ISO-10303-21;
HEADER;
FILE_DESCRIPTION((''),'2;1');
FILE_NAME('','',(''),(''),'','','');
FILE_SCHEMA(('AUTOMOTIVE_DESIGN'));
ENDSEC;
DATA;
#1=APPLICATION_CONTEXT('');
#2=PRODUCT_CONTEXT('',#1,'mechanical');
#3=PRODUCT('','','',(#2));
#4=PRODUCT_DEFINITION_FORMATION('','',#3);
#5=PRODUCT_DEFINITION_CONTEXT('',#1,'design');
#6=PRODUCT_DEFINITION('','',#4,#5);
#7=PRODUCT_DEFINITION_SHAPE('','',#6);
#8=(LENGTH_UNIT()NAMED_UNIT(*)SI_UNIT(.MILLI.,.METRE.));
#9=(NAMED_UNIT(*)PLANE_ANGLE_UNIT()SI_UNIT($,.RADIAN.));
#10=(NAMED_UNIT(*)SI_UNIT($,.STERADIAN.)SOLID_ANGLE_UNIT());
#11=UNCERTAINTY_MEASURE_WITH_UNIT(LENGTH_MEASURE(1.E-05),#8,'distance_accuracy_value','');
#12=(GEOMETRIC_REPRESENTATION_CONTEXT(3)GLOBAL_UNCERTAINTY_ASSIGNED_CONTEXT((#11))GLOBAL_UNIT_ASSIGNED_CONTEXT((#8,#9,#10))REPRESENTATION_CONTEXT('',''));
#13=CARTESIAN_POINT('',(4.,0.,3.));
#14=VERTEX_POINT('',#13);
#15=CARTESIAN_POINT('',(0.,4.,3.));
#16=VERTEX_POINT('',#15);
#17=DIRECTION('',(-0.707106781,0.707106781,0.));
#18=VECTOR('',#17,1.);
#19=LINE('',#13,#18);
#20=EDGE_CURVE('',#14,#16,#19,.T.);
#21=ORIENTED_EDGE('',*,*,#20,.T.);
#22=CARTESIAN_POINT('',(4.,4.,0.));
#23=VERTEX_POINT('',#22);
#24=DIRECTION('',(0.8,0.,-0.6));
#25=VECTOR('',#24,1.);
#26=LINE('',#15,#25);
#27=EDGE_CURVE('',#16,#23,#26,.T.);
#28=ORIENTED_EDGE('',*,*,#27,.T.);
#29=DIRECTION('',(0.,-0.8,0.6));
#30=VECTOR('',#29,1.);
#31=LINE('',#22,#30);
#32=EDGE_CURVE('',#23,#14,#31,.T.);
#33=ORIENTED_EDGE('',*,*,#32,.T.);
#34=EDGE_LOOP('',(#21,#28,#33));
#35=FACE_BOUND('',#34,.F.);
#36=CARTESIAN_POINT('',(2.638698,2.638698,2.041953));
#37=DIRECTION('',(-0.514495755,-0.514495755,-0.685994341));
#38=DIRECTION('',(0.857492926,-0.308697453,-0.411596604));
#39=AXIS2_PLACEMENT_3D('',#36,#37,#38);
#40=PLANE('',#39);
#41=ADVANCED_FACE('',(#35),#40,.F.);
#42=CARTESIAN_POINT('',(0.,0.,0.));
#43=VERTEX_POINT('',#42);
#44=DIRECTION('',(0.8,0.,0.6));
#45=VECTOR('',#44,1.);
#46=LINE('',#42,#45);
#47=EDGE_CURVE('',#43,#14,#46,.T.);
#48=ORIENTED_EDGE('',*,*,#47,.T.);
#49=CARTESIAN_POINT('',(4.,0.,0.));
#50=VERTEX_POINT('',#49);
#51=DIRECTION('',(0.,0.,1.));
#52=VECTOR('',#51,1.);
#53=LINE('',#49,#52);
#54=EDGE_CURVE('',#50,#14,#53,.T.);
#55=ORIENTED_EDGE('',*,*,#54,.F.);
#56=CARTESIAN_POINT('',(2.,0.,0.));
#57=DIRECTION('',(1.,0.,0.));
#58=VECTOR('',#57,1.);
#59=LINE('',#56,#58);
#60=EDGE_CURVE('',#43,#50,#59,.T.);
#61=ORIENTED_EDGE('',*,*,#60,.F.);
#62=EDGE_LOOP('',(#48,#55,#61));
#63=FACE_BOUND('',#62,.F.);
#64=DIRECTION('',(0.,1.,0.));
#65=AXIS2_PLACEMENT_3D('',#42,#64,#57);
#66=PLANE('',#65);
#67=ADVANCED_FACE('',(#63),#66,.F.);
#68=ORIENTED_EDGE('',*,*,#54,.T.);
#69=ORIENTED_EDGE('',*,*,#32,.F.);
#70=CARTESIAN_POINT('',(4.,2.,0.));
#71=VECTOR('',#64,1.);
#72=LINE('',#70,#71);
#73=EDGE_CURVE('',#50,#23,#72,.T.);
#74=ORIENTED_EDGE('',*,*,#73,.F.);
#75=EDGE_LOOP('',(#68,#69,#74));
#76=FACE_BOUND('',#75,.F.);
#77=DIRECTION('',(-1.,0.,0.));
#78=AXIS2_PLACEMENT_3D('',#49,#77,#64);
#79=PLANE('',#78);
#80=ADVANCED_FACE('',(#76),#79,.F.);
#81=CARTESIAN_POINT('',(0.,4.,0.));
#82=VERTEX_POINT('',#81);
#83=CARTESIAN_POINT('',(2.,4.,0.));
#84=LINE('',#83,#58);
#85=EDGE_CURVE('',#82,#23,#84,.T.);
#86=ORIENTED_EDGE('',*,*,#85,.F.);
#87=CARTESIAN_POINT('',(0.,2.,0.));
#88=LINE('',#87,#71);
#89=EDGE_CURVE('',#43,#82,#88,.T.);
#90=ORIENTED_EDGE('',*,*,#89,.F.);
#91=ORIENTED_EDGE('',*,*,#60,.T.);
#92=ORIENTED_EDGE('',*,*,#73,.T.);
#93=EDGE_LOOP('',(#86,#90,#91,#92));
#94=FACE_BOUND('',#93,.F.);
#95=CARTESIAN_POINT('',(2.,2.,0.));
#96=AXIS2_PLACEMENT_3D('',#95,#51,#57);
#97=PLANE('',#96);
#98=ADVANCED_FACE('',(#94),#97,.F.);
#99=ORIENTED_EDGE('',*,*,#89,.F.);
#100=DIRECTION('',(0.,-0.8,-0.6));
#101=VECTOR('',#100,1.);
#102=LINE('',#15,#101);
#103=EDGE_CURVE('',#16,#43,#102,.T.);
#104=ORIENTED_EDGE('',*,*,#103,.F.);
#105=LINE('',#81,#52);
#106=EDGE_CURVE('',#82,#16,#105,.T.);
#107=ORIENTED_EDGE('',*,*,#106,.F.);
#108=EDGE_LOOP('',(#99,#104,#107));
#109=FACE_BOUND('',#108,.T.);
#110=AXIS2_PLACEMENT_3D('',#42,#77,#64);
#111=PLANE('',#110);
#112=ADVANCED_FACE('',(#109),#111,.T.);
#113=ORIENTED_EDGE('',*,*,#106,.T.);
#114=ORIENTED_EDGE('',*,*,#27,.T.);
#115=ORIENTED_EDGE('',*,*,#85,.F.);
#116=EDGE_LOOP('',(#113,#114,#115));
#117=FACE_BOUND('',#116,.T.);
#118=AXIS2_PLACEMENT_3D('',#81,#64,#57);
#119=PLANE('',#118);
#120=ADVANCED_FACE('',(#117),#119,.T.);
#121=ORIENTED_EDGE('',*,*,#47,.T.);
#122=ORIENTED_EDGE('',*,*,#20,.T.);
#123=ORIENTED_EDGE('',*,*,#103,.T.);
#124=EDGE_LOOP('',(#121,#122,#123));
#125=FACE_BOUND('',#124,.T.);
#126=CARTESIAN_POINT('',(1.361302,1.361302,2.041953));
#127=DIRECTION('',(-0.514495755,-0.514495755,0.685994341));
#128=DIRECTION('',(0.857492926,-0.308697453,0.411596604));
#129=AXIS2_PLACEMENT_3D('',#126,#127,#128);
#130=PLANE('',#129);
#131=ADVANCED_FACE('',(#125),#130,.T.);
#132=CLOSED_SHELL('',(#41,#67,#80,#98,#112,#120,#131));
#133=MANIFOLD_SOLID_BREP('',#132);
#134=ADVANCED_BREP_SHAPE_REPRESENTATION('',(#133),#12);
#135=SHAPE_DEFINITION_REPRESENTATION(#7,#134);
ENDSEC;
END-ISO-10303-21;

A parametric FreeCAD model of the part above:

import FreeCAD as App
import Part
import Sketcher


def add_polygon(sketch, points):
    """Adds a closed chain of lines whose ends are joined by coincident constraints."""
    first, n = sketch.GeometryCount, len(points)
    for a, b in zip(points, points[1:] + points[:1]):
        sketch.addGeometry(Part.LineSegment(App.Vector(*a, 0), App.Vector(*b, 0)), False)
    for i in range(n):
        sketch.addConstraint(Sketcher.Constraint("Coincident", first + i, 2, first + (i + 1) % n, 1))

doc = App.newDocument("Part")
body = doc.addObject("PartDesign::Body", "Body")

# Sketch on XY plane
sketch1 = doc.addObject("Sketcher::SketchObject", "Sketch")
body.addObject(sketch1)
sketch1.AttachmentSupport = (doc.XY_Plane, [""])
sketch1.MapMode = "FlatFace"
add_polygon(sketch1, [(0, 4), (0, 0), (4, 0), (4, 4)])  # lines 0-3
sketch1.addConstraint(Sketcher.Constraint("Vertical", 0))
sketch1.addConstraint(Sketcher.Constraint("Horizontal", 1))
sketch1.addConstraint(Sketcher.Constraint("Vertical", 2))
sketch1.addConstraint(Sketcher.Constraint("Horizontal", 3))
sketch1.addConstraint(Sketcher.Constraint("Coincident", 0, 2, -1, 1))
sketch1.addConstraint(Sketcher.Constraint("Equal", 3, 0))
sketch1.addConstraint(Sketcher.Constraint("DistanceX", 1, 1, 1, 2, 4.0))
pad1 = doc.addObject("PartDesign::Pad", "Pad")
body.addObject(pad1)
pad1.Profile = sketch1
pad1.Length = 3

# Sketch on an angled plane
sketch2 = doc.addObject("Sketcher::SketchObject", "Sketch001")
body.addObject(sketch2)
sketch2.Placement = App.Placement(App.Vector(0, 0, 0), App.Rotation(App.Vector(0.857492926, -0.308697453, 0.411596604), App.Vector(0, 0.8, 0.6), App.Vector(-0.514495755, -0.514495755, 0.685994341), "ZXY"))
add_polygon(sketch2, [(4.7, 1.8), (0, 5), (0, 0)])  # lines 0-2
sketch2.addConstraint(Sketcher.Constraint("Vertical", 1))
sketch2.addConstraint(Sketcher.Constraint("Coincident", 1, 2, -1, 1))
sketch2.addConstraint(Sketcher.Constraint("DistanceY", 1, 2, 1, 1, 5.0))
sketch2.addConstraint(Sketcher.Constraint("Distance", 2, 5.0))
sketch2.addConstraint(Sketcher.Constraint("DistanceY", -1, 1, 2, 2, 1.8))
pocket1 = doc.addObject("PartDesign::Pocket", "Pocket")
body.addObject(pocket1)
pocket1.Profile = sketch2
pocket1.Length = 25
pocket1.Reversed = True

# Sketch on an angled plane
sketch3 = doc.addObject("Sketcher::SketchObject", "Sketch002")
body.addObject(sketch3)
sketch3.Placement = App.Placement(App.Vector(2.117647, 2.117647, 2.823529), App.Rotation(App.Vector(0.857492926, -0.308697453, -0.411596604), App.Vector(0, -0.8, 0.6), App.Vector(-0.514495755, -0.514495755, -0.685994341), "ZXY"))
add_polygon(sketch3, [(2.2, 1.8), (-2.5, -1.4), (2.2, -3.2)])  # lines 0-2
sketch3.addConstraint(Sketcher.Constraint("Vertical", 2))
sketch3.addConstraint(Sketcher.Constraint("DistanceY", 2, 1, 2, 2, 5.0))
sketch3.addConstraint(Sketcher.Constraint("Distance", 1, 5.0))
sketch3.addConstraint(Sketcher.Constraint("DistanceY", 0, 2, -1, 1, 1.4))
sketch3.addConstraint(Sketcher.Constraint("DistanceY", 1, 2, -1, 1, 3.2))
sketch3.addConstraint(Sketcher.Constraint("DistanceX", 0, 2, -1, 1, 2.46958))
pocket2 = doc.addObject("PartDesign::Pocket", "Pocket001")
body.addObject(pocket2)
pocket2.Profile = sketch3
pocket2.Length = 25

doc.recompute()
